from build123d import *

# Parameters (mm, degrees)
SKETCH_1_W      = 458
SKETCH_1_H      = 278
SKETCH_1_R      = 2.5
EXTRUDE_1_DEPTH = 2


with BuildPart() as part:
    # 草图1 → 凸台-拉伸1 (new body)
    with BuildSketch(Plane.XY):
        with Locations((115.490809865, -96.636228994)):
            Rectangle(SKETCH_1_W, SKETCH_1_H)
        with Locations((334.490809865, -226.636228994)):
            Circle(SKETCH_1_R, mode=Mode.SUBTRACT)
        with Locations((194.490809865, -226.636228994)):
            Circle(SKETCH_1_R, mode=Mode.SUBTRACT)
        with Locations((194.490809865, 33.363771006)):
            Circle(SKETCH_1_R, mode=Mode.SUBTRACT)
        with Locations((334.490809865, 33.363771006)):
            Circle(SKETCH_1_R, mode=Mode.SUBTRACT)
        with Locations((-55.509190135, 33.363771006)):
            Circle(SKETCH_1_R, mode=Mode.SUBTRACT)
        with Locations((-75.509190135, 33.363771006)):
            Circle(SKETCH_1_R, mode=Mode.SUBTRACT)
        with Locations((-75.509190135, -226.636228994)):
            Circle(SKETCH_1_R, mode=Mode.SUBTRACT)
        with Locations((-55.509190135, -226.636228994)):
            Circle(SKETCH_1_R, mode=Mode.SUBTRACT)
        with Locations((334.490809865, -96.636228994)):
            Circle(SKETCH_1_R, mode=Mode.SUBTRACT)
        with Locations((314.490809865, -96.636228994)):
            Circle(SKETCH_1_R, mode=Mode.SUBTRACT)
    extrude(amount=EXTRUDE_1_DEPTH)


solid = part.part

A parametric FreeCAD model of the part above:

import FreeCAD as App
import Part
import Sketcher

V = App.Vector
Q = App.Units.Quantity

doc = App.newDocument("Part")
body = doc.addObject("PartDesign::Body", "Body")

# Sketch on XY plane
sketch1 = body.newObject("Sketcher::SketchObject", "Sketch")
sketch1.AttachmentSupport = (doc.getObject("XY_Plane"), [""])
sketch1.MapMode = "FlatFace"
sketch1.addGeometry([
    Part.LineSegment(V(-113.5, 42.4, 0), V(-113.5, -235.6, 0)),  # 0
    Part.LineSegment(V(-113.5, -235.6, 0), V(344.5, -235.6, 0)),  # 1
    Part.LineSegment(V(344.5, -235.6, 0), V(344.5, 42.4, 0)),  # 2
    Part.LineSegment(V(344.5, 42.4, 0), V(-113.5, 42.4, 0)),  # 3
    Part.Circle(V(-75.5, -226.6, 0), V(0, 0, 1), 2.5),  # 4
    Part.Circle(V(-55.5, -226.6, 0), V(0, 0, 1), 2.5),  # 5
    Part.Circle(V(194.5, -226.6, 0), V(0, 0, 1), 2.5),  # 6
    Part.Circle(V(334.5, -226.6, 0), V(0, 0, 1), 2.5),  # 7
    Part.Circle(V(-75.5, 33.4, 0), V(0, 0, 1), 2.5),  # 8
    Part.Circle(V(-55.5, 33.4, 0), V(0, 0, 1), 2.5),  # 9
    Part.Circle(V(314.5, -96.6, 0), V(0, 0, 1), 2.5),  # 10
    Part.Circle(V(334.5, -96.6, 0), V(0, 0, 1), 2.5),  # 11
    Part.Circle(V(194.5, 33.4, 0), V(0, 0, 1), 2.5),  # 12
    Part.Circle(V(334.5, 33.4, 0), V(0, 0, 1), 2.5),  # 13
], False)
sketch1.addConstraint([
    Sketcher.Constraint("Coincident", 0, 2, 1, 1),
    Sketcher.Constraint("Coincident", 1, 2, 2, 1),
    Sketcher.Constraint("Coincident", 2, 2, 3, 1),
    Sketcher.Constraint("Coincident", 3, 2, 0, 1),
    Sketcher.Constraint("Vertical", 0),
    Sketcher.Constraint("Horizontal", 1),
    Sketcher.Constraint("Vertical", 2),
    Sketcher.Constraint("Horizontal", 3),
    Sketcher.Constraint("Equal", 4, 5),
    Sketcher.Constraint("Equal", 5, 6),
    Sketcher.Constraint("Equal", 6, 7),
    Sketcher.Constraint("Equal", 7, 8),
    Sketcher.Constraint("Equal", 8, 9),
    Sketcher.Constraint("Equal", 9, 10),
    Sketcher.Constraint("Equal", 10, 11),
    Sketcher.Constraint("Equal", 11, 12),
    Sketcher.Constraint("Equal", 12, 13),
    Sketcher.Constraint("Horizontal", 4, 3, 5, 3),
    Sketcher.Constraint("Horizontal", 5, 3, 6, 3),
    Sketcher.Constraint("Horizontal", 6, 3, 7, 3),
    Sketcher.Constraint("Horizontal", 8, 3, 9, 3),
    Sketcher.Constraint("Horizontal", 10, 3, 11, 3),
    Sketcher.Constraint("Horizontal", 9, 3, 12, 3),
    Sketcher.Constraint("Horizontal", 12, 3, 13, 3),
    Sketcher.Constraint("Vertical", 4, 3, 8, 3),
    Sketcher.Constraint("Vertical", 5, 3, 9, 3),
    Sketcher.Constraint("Vertical", 7, 3, 11, 3),
    Sketcher.Constraint("Vertical", 6, 3, 12, 3),
    Sketcher.Constraint("Vertical", 11, 3, 13, 3),
    Sketcher.Constraint("Diameter", 4, Q("5 mm")),
    Sketcher.Constraint("DistanceX", 1, 1, 1, 2, Q("458 mm")),
    Sketcher.Constraint("DistanceY", 0, 2, 0, 1, Q("278 mm")),
    Sketcher.Constraint("DistanceX", 4, 3, 5, 3, Q("20 mm")),
    Sketcher.Constraint("DistanceX", 5, 3, 6, 3, Q("250 mm")),
    Sketcher.Constraint("DistanceX", 6, 3, 7, 3, Q("140 mm")),
    Sketcher.Constraint("DistanceY", 4, 3, 8, 3, Q("260 mm")),
    Sketcher.Constraint("DistanceX", 10, 3, 7, 3, Q("20 mm")),
    Sketcher.Constraint("DistanceY", 7, 3, 10, 3, Q("130 mm")),
    Sketcher.Constraint("DistanceX", 0, 2, 4, 3, Q("38 mm")),
    Sketcher.Constraint("DistanceY", 0, 2, 4, 3, Q("9 mm")),
    Sketcher.Constraint("DistanceX", 4, 3, -1, 1, Q("75.50919 mm")),
    Sketcher.Constraint("DistanceY", 4, 3, -1, 1, Q("226.636229 mm")),
])
pad1 = body.newObject("PartDesign::Pad", "Pad")
pad1.Profile = sketch1
pad1.Length = 2

doc.recompute()
